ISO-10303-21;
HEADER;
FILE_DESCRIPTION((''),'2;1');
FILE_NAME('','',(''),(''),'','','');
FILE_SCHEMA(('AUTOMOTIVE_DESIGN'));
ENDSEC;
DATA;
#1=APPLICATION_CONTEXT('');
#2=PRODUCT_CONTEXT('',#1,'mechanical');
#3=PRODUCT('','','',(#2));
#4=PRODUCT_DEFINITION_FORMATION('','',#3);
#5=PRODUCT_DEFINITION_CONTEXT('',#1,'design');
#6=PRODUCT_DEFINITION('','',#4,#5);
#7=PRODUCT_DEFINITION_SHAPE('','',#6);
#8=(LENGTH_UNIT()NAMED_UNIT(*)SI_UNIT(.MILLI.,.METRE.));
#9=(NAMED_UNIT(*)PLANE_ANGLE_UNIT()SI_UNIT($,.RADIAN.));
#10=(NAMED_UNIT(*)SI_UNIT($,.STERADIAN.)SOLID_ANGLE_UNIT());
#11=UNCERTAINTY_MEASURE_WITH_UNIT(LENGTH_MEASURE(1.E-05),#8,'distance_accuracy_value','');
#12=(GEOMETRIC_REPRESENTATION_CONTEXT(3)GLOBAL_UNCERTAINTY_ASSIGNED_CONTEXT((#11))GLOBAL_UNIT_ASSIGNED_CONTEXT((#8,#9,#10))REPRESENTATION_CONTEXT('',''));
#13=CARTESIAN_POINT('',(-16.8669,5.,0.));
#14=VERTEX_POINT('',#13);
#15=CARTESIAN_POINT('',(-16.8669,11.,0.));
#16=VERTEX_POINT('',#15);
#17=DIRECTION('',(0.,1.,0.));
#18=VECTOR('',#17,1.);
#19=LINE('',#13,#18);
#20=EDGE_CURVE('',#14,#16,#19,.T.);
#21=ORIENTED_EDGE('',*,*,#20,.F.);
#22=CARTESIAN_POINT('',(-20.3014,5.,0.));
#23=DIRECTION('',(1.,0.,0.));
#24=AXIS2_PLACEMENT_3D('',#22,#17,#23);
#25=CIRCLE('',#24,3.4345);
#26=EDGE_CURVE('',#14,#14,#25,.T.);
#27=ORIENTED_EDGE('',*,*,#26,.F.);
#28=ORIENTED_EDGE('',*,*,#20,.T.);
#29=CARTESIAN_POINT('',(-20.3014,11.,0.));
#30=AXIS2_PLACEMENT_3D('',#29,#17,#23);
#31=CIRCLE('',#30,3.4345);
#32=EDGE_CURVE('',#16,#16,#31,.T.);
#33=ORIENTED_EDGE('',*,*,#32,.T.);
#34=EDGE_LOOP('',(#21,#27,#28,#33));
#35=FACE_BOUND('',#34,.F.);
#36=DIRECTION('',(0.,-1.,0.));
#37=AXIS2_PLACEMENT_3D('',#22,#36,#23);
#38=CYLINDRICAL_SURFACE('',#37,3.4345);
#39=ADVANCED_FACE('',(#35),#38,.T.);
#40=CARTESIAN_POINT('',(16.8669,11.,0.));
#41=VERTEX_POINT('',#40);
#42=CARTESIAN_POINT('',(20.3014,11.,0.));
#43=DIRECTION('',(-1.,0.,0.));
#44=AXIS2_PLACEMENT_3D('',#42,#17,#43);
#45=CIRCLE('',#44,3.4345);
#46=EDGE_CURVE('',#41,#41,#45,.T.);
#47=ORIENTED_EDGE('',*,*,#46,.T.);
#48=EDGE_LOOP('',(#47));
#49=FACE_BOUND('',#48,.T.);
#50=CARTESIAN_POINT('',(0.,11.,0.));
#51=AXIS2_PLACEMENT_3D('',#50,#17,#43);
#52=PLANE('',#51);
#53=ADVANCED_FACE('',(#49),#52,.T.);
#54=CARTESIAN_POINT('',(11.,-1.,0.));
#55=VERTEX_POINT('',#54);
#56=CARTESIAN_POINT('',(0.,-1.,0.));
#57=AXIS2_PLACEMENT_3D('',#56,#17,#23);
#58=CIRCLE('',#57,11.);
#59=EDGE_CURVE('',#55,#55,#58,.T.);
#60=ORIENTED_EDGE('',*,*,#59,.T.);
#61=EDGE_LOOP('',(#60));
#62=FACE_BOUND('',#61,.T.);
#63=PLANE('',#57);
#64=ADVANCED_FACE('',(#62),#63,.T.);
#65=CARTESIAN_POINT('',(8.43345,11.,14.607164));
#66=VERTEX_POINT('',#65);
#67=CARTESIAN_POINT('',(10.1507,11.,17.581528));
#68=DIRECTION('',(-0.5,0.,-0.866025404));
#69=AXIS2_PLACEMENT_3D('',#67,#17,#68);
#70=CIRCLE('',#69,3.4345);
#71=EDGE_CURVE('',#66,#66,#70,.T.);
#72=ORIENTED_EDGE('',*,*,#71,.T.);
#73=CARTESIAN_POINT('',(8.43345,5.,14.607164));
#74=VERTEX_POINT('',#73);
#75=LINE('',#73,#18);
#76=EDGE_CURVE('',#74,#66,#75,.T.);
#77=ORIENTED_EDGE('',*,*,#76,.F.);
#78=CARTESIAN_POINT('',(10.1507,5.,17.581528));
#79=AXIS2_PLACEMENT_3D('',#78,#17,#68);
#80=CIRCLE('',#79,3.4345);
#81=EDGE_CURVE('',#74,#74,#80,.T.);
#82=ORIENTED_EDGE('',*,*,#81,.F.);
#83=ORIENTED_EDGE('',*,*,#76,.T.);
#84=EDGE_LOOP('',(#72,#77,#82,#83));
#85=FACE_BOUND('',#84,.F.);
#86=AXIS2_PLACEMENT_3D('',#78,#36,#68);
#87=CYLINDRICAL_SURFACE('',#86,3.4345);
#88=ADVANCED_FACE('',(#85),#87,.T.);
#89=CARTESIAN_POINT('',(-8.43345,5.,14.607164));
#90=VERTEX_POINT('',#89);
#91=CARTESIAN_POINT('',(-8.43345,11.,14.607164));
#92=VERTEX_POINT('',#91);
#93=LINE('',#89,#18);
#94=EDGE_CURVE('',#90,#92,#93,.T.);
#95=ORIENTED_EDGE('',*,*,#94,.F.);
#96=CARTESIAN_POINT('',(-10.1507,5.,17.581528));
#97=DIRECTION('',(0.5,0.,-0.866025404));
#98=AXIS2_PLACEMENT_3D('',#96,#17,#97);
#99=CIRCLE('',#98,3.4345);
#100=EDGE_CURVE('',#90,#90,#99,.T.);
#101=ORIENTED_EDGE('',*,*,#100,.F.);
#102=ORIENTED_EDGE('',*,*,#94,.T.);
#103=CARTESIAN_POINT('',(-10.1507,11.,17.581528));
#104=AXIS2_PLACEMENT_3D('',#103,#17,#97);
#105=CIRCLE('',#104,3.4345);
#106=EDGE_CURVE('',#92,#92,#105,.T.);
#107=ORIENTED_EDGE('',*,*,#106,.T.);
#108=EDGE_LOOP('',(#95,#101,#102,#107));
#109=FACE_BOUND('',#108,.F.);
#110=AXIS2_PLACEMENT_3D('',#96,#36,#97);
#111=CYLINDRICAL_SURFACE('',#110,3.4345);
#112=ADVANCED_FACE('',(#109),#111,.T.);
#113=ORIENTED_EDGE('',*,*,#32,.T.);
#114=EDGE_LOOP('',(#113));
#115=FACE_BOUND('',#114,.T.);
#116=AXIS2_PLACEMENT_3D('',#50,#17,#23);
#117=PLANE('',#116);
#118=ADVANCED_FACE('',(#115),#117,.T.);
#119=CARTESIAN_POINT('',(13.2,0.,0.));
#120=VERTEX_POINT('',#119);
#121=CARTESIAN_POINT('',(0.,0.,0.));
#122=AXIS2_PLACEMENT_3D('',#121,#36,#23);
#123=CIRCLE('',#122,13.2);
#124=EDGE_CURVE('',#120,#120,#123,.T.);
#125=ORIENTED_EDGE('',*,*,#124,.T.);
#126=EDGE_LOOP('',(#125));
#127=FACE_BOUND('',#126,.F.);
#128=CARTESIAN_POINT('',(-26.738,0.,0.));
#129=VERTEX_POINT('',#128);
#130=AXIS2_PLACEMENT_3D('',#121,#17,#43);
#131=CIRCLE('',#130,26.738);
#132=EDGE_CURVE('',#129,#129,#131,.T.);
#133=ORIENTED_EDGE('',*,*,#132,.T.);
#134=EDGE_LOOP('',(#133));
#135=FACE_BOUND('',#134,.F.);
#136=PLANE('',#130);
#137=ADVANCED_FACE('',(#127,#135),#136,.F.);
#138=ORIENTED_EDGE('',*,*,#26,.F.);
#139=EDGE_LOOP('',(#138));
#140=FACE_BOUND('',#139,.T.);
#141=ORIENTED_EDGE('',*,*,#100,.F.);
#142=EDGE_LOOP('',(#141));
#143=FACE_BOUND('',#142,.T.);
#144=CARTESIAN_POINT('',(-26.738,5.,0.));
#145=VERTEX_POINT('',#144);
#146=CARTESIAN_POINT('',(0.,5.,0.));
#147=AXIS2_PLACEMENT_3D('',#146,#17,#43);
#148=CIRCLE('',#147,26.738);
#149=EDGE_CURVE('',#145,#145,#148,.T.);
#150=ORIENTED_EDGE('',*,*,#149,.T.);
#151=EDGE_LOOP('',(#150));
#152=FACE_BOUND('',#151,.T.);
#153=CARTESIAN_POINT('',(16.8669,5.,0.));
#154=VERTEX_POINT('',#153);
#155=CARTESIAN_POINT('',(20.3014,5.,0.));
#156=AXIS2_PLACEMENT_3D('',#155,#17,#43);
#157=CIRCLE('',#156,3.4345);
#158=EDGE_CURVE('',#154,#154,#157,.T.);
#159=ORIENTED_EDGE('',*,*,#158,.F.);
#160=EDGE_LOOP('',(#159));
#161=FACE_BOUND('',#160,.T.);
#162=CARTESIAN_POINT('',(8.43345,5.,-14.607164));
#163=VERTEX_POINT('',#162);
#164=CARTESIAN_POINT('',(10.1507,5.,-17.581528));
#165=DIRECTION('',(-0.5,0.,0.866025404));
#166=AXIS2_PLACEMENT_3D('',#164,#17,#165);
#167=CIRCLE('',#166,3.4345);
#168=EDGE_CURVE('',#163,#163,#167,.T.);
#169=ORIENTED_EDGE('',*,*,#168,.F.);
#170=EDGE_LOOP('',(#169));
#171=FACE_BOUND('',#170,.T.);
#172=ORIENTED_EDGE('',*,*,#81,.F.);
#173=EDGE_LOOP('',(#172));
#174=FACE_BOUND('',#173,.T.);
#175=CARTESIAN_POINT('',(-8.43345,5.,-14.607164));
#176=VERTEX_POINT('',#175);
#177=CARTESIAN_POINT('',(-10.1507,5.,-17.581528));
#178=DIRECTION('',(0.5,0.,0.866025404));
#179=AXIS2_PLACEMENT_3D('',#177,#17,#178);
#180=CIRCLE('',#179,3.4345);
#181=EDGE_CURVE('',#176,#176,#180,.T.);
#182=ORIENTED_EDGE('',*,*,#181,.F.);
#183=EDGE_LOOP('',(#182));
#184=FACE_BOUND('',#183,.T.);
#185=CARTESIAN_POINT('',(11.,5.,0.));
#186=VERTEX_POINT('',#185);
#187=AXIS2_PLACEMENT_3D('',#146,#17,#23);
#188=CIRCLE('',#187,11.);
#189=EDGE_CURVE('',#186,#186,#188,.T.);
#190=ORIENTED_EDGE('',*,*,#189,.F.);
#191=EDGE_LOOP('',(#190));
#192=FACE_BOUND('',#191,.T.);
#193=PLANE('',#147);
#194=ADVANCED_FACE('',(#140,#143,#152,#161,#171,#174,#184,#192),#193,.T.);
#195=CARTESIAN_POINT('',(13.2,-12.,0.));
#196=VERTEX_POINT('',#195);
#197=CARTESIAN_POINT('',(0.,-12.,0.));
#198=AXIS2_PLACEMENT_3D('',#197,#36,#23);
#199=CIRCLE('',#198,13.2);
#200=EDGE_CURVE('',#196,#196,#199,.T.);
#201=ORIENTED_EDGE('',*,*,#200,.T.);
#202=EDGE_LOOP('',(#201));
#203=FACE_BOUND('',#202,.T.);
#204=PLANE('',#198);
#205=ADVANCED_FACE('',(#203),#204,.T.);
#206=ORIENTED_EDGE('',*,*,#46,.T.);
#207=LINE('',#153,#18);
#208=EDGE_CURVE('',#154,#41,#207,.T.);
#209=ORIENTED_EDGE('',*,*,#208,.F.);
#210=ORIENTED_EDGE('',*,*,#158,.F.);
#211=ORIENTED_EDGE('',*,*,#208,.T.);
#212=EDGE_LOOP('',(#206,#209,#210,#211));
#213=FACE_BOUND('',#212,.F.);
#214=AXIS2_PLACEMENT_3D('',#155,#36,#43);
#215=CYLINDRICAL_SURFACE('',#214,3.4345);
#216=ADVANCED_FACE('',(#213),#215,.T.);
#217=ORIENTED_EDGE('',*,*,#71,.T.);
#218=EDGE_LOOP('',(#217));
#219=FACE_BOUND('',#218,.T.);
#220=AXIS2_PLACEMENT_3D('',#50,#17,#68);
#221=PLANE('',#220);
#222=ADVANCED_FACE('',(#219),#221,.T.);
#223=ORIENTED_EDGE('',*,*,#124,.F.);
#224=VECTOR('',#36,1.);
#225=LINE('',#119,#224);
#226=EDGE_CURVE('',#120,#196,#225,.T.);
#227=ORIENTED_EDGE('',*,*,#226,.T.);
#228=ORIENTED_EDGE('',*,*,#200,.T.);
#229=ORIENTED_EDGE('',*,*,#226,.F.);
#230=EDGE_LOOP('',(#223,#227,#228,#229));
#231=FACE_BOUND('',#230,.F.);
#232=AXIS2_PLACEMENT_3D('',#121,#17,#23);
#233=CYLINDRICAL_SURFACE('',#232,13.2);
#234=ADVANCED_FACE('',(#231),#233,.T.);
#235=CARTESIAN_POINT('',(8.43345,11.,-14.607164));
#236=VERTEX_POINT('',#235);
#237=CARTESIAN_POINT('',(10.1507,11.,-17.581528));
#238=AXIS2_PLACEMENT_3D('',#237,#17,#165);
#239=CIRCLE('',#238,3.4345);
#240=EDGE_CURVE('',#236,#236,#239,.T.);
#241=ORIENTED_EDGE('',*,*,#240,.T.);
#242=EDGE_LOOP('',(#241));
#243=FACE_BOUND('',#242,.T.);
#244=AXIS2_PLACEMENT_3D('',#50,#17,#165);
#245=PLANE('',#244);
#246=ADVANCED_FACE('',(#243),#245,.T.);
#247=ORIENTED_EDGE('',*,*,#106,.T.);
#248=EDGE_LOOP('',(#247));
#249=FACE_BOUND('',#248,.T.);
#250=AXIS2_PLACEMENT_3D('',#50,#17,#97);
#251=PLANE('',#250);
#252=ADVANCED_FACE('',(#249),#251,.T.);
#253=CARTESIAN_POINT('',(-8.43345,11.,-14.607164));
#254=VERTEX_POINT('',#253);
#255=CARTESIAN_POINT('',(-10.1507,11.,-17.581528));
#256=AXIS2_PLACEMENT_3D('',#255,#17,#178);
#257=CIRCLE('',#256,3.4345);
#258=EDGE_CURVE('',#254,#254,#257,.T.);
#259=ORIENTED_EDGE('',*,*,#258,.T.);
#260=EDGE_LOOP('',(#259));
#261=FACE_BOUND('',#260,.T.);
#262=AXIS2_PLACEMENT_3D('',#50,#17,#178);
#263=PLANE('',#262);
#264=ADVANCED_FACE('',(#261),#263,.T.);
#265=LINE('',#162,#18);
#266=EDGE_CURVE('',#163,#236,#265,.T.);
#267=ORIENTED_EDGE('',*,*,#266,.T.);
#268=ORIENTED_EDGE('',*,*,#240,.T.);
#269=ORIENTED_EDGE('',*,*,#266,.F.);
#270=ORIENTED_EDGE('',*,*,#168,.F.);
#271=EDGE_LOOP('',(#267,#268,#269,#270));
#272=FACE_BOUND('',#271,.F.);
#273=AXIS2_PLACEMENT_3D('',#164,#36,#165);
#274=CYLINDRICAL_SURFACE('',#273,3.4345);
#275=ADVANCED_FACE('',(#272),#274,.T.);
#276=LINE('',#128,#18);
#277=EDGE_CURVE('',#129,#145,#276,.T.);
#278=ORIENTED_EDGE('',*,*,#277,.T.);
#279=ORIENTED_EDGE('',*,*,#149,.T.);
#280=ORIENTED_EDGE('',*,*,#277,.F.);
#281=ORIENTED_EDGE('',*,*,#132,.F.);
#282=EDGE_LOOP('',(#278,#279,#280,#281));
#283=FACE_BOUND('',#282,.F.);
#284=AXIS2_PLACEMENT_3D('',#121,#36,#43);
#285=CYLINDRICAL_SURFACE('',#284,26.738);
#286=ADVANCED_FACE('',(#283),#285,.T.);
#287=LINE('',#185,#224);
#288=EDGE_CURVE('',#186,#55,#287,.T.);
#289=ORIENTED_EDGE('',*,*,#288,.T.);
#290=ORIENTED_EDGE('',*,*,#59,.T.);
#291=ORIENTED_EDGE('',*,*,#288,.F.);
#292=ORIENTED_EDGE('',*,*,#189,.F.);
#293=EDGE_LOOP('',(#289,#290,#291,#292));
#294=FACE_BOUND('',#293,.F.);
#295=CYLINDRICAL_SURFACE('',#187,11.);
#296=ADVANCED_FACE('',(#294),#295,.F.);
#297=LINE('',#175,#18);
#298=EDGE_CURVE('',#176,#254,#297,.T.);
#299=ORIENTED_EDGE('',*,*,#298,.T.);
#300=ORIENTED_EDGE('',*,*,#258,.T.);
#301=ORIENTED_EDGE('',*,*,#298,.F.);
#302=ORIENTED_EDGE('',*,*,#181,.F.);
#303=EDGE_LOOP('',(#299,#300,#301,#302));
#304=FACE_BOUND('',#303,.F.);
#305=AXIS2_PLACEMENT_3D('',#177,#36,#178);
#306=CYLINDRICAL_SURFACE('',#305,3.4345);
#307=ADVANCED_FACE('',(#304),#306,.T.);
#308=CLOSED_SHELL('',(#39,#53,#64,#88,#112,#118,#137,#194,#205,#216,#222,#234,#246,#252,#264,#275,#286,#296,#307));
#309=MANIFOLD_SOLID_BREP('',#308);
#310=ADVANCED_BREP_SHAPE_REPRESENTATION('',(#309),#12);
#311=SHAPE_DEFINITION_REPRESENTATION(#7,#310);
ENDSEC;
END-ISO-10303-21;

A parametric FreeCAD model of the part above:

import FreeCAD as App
import Part
import Sketcher

V = App.Vector
Q = App.Units.Quantity

doc = App.newDocument("Part")
body = doc.addObject("PartDesign::Body", "Body")

sketch1 = body.newObject("Sketcher::SketchObject", "Sketch")
sketch1.AttachmentSupport = (doc.getObject("XZ_Plane"), [""])
sketch1.MapMode = "FlatFace"
sketch1.addGeometry(Part.Circle(V(0, 0, 0), V(0, 0, 1), 27), False)
sketch1.addConstraint([
    Sketcher.Constraint("Coincident", 0, 3, -1, 1),
    Sketcher.Constraint("Diameter", 0, Q("53.476 mm")),
])
pad1 = body.newObject("PartDesign::Pad", "Pad")
pad1.Profile = sketch1
pad1.Length = 5
pad1.Reversed = True

sketch2 = body.newObject("Sketcher::SketchObject", "Sketch001")
sketch2.AttachmentSupport = (doc.getObject("XZ_Plane"), [""])
sketch2.MapMode = "FlatFace"
sketch2.AttachmentOffset = App.Placement(V(0, 0, -5), App.Rotation())
sketch2.addGeometry(Part.Circle(V(-20.3, 0, 0), V(0, 0, 1), 3.4), False)
sketch2.addConstraint([
    Sketcher.Constraint("PointOnObject", 0, 3, -1),
    Sketcher.Constraint("Diameter", 0, Q("6.869 mm")),
    Sketcher.Constraint("DistanceX", 0, 3, -1, 1, Q("20.3014 mm")),
])
pad2 = body.newObject("PartDesign::Pad", "Pad001")
pad2.Profile = sketch2
pad2.Length = 6
pad2.Reversed = True
doc.recompute()

polarpattern = body.newObject("PartDesign::PolarPattern", "PolarPattern")
polarpattern.Originals = [pad2]
polarpattern.Axis = (doc.getObject("Y_Axis"), [""])
polarpattern.Angle = 360
polarpattern.Occurrences = 6
body.Tip = polarpattern

sketch3 = body.newObject("Sketcher::SketchObject", "Sketch002")
sketch3.AttachmentSupport = (doc.getObject("XZ_Plane"), [""])
sketch3.MapMode = "FlatFace"
sketch3.addGeometry(Part.Circle(V(0, 0, 0), V(0, 0, 1), 13), False)
sketch3.addConstraint([
    Sketcher.Constraint("Coincident", 0, 3, -1, 1),
    Sketcher.Constraint("Diameter", 0, Q("26.4 mm")),
])
pad3 = body.newObject("PartDesign::Pad", "Pad002")
pad3.Profile = sketch3
pad3.Length = 12

sketch4 = body.newObject("Sketcher::SketchObject", "Sketch003")
sketch4.AttachmentSupport = (doc.getObject("XZ_Plane"), [""])
sketch4.MapMode = "FlatFace"
sketch4.AttachmentOffset = App.Placement(V(0, 0, -5), App.Rotation())
sketch4.addGeometry(Part.Circle(V(0, 0, 0), V(0, 0, 1), 11), False)
sketch4.addConstraint([
    Sketcher.Constraint("Coincident", 0, 3, -1, 1),
    Sketcher.Constraint("Diameter", 0, Q("22 mm")),
])
pocket1 = body.newObject("PartDesign::Pocket", "Pocket")
pocket1.Profile = sketch4
pocket1.Length = 6
pocket1.Reversed = True

doc.recompute()
